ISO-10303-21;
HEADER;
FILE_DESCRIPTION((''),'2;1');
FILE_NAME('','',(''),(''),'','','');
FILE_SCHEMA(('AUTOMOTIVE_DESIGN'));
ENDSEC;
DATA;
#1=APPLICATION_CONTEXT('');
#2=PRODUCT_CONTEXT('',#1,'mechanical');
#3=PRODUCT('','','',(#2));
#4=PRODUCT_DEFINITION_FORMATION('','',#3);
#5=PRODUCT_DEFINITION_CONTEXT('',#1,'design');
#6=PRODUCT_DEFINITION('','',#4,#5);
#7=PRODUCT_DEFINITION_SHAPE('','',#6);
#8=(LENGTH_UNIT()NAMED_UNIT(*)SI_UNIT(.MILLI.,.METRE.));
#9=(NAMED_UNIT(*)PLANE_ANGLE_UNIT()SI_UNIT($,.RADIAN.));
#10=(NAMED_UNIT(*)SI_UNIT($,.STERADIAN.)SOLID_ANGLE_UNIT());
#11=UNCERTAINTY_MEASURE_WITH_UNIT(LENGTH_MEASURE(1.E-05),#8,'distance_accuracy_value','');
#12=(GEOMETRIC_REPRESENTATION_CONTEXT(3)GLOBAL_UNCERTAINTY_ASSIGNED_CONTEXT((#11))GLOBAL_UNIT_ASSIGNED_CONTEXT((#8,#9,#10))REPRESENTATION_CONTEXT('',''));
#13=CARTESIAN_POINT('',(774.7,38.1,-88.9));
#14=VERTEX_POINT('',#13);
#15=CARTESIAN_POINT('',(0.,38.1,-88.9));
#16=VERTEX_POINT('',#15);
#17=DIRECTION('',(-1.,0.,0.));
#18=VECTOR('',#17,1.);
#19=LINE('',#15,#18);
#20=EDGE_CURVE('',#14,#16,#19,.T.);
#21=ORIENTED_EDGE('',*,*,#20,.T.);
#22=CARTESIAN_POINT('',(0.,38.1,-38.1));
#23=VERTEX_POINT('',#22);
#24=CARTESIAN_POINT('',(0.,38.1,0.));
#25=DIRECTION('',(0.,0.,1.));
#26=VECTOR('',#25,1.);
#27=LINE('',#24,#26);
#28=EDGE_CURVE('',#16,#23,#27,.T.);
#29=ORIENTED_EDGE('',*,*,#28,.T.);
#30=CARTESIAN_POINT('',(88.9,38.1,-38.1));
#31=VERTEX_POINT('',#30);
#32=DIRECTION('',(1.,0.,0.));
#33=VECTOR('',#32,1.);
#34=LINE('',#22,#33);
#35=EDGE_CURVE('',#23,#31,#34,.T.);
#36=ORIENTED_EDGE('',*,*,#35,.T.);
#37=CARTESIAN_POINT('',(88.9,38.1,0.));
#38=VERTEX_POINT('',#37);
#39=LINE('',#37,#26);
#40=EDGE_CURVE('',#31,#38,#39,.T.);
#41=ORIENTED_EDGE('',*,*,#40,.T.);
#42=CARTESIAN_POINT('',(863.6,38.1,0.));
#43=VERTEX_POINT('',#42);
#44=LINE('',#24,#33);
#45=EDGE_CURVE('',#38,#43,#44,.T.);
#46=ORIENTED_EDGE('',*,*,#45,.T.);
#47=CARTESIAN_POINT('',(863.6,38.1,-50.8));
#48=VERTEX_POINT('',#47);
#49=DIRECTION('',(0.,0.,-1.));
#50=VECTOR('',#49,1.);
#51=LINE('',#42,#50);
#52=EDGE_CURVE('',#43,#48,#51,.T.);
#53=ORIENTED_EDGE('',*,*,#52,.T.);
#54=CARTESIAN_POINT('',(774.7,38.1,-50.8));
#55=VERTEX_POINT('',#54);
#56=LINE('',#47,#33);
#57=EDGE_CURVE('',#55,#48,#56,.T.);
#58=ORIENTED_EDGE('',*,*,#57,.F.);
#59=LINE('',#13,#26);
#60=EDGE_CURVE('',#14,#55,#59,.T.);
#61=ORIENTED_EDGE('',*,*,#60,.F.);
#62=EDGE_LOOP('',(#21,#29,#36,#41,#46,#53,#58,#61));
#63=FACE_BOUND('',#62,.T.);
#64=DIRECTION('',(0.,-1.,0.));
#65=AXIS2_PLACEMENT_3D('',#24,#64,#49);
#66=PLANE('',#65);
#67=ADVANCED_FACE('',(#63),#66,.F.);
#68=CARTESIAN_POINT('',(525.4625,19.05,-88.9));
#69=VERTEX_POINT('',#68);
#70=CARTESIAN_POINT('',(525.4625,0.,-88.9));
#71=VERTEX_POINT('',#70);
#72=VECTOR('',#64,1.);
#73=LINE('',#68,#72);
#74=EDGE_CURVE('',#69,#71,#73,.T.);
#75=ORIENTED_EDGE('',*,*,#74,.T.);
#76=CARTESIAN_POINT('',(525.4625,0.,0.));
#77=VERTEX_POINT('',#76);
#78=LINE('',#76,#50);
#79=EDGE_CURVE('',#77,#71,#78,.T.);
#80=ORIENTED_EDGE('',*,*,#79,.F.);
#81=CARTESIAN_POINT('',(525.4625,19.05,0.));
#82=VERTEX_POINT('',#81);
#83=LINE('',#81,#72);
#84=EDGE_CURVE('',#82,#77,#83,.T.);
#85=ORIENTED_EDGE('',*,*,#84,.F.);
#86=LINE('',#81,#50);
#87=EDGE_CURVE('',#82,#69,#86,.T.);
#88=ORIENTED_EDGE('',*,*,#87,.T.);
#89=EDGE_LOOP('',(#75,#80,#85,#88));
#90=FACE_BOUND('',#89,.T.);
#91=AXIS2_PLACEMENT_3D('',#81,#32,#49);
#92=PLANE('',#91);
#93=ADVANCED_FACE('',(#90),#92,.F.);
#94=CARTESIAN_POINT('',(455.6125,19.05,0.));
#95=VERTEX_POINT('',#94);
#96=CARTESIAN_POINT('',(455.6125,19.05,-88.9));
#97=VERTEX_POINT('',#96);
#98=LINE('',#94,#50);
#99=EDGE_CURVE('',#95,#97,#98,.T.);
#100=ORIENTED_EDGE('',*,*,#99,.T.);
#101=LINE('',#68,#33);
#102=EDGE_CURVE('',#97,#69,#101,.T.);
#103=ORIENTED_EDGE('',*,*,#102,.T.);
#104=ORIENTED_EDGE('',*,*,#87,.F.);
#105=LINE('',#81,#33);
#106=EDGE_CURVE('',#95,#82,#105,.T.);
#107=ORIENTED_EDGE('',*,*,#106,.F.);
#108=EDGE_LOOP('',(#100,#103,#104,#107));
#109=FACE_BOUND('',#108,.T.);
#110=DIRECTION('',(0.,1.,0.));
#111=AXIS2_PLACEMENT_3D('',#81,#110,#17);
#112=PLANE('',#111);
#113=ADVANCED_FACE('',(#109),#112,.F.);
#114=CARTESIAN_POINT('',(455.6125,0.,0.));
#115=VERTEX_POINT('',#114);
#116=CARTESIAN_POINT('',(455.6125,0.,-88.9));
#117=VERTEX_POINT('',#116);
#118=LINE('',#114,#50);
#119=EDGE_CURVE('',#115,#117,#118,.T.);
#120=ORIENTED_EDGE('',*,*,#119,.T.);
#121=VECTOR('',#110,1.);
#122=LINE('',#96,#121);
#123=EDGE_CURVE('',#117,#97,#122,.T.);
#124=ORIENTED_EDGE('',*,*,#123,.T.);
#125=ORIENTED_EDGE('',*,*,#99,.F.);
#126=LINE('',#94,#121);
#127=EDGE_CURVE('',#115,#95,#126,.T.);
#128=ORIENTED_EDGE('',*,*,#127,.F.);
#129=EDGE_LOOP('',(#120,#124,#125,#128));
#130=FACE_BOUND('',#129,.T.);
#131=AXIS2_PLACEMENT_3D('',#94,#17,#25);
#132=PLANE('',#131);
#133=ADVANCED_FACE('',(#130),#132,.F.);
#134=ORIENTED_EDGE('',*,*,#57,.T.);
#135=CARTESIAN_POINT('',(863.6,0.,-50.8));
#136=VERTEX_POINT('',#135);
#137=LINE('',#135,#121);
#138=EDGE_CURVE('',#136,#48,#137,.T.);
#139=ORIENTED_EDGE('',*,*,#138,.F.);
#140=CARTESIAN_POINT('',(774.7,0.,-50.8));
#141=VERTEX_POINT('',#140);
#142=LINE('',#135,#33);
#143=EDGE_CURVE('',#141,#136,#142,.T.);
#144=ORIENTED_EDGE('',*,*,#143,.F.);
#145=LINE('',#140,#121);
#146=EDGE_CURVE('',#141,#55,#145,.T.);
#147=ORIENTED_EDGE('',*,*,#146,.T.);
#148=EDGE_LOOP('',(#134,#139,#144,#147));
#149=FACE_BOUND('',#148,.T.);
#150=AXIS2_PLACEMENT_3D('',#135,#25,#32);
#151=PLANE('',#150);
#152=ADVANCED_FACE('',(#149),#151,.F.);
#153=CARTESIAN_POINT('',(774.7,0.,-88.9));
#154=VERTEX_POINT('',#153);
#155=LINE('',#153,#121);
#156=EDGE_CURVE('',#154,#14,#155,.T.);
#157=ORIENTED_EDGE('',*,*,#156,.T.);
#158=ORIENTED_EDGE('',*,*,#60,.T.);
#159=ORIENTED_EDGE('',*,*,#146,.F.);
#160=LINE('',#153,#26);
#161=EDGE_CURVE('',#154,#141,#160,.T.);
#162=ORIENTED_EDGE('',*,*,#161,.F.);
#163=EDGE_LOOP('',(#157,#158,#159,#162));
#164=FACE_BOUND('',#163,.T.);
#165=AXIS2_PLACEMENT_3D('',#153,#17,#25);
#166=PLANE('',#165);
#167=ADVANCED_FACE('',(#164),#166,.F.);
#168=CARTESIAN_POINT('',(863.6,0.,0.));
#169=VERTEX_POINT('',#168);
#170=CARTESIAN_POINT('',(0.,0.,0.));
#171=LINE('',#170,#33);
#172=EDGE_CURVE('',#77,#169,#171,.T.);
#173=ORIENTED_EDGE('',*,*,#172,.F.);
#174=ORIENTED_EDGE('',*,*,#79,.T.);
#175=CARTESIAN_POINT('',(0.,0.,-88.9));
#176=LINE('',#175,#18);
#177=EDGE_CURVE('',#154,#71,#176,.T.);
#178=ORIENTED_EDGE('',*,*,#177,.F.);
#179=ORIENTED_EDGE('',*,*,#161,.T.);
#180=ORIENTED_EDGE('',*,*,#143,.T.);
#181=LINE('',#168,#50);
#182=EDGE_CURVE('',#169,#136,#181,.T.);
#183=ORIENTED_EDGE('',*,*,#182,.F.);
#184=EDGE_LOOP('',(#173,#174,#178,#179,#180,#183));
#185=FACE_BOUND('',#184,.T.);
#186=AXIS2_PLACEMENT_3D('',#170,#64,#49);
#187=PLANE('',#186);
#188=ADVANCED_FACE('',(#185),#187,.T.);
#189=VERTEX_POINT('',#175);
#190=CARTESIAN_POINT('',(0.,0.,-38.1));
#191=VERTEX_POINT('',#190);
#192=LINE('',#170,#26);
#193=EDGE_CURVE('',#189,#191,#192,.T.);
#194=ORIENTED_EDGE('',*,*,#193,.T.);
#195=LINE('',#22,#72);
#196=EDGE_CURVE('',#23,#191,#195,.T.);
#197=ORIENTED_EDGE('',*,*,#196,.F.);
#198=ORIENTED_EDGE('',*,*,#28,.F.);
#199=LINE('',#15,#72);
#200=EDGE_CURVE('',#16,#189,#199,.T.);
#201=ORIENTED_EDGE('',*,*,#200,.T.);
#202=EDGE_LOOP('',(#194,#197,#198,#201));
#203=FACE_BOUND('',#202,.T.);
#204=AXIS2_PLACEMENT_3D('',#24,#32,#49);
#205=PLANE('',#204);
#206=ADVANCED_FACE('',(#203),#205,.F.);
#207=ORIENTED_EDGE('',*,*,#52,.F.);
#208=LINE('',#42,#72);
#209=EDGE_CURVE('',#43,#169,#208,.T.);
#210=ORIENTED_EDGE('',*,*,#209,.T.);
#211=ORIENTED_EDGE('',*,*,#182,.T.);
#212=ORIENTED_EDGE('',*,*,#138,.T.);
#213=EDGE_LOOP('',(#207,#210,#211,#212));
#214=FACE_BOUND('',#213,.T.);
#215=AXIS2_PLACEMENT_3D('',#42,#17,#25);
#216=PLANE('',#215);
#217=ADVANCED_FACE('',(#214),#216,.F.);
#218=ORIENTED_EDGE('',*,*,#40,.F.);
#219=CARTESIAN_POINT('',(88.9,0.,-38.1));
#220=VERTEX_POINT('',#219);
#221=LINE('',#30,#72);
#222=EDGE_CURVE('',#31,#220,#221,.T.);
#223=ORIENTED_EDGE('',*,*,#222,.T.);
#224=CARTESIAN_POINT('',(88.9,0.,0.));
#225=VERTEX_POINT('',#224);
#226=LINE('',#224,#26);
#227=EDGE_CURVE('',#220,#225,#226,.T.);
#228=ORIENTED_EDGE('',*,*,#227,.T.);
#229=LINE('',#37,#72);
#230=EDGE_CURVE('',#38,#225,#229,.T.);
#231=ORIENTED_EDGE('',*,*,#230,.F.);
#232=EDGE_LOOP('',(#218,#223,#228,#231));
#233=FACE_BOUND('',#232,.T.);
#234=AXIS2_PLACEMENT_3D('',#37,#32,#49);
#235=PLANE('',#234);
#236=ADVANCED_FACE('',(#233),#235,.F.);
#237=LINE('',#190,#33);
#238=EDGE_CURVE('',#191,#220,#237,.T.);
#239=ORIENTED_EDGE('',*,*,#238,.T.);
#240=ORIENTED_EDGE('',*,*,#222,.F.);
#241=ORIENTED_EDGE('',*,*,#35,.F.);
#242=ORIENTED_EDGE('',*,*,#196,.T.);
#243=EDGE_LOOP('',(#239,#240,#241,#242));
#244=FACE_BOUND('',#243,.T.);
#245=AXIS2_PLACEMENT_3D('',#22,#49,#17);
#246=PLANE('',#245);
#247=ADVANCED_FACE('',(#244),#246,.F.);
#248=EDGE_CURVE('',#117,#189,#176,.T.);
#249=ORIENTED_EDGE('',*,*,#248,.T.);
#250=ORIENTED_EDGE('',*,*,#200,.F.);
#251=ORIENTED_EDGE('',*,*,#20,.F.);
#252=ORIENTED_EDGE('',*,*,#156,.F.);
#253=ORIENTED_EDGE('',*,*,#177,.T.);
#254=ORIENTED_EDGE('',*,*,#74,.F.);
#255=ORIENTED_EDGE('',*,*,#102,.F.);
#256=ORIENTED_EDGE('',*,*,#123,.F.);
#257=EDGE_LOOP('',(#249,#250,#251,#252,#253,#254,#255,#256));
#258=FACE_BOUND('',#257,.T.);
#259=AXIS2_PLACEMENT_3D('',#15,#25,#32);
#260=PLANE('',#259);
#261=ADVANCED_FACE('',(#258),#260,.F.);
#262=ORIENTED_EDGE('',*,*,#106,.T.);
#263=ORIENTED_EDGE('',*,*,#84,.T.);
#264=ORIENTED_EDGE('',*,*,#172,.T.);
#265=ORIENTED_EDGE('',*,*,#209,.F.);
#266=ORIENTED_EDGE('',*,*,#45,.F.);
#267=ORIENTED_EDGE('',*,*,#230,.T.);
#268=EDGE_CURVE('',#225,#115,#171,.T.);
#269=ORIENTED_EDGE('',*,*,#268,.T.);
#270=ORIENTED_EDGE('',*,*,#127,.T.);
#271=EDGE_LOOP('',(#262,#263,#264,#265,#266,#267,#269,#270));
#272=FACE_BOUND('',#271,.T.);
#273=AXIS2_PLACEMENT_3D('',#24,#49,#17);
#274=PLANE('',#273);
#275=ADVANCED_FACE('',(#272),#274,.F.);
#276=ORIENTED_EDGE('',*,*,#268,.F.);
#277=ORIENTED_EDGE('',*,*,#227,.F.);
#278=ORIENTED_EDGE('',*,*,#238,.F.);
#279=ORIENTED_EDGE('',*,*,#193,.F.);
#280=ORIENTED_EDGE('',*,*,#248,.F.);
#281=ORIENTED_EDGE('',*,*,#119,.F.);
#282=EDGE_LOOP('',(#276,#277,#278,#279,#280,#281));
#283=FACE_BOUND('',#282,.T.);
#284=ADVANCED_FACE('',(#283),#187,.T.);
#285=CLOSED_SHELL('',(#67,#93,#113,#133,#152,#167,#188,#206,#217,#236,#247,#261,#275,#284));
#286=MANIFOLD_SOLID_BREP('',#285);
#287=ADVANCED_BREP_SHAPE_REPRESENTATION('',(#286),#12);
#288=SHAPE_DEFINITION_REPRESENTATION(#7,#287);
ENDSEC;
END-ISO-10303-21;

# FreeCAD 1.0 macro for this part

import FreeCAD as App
import Part
import Sketcher
Q = App.Units.Quantity

doc = App.newDocument("Part")
params = doc.addObject("Spreadsheet::Sheet", "Params")
for row, (alias, value) in enumerate([
    ("sketch1_width", "34 in"),
    ("sketch1_height", "3.5 in"),
    ("pad1_length", "1.5 in"),
    ("sketch2_width", "3.5 in"),
    ("sketch2_height", "1.5 in"),
    ("sketch3_width", "2.75 in"),
    ("sketch3_height", "0.75 in"),
    ("sketch4_width", "3.5 in"),
    ("sketch4_height", "1.5 in"),
], start=1):
    params.set(f"A{row}", alias)
    params.set(f"B{row}", "=" + value)
    params.setAlias(f"B{row}", alias)

body = doc.addObject("PartDesign::Body", "Body")

sketch1 = body.newObject("Sketcher::SketchObject", "Sketch")
sketch1.AttachmentSupport = (doc.getObject("XZ_Plane"), [""])
sketch1.MapMode = "FlatFace"
sketch1.addGeometry(Part.LineSegment(App.Vector(0, -89, 0), App.Vector(0, 0, 0)), False)
sketch1.addGeometry(Part.LineSegment(App.Vector(0, 0, 0), App.Vector(864, 0, 0)), False)
sketch1.addGeometry(Part.LineSegment(App.Vector(864, 0, 0), App.Vector(864, -89, 0)), False)
sketch1.addGeometry(Part.LineSegment(App.Vector(864, -89, 0), App.Vector(0, -89, 0)), False)
sketch1.addConstraint(Sketcher.Constraint("Coincident", 0, 2, 1, 1))
sketch1.addConstraint(Sketcher.Constraint("Coincident", 1, 2, 2, 1))
sketch1.addConstraint(Sketcher.Constraint("Coincident", 2, 2, 3, 1))
sketch1.addConstraint(Sketcher.Constraint("Coincident", 3, 2, 0, 1))
sketch1.addConstraint(Sketcher.Constraint("Vertical", 0))
sketch1.addConstraint(Sketcher.Constraint("Horizontal", 1))
sketch1.addConstraint(Sketcher.Constraint("Vertical", 2))
sketch1.addConstraint(Sketcher.Constraint("Horizontal", 3))
sketch1.addConstraint(Sketcher.Constraint("Coincident", 0, 2, -1, 1))
sketch1.addConstraint(Sketcher.Constraint("DistanceX", 1, 1, 1, 2, Q("34 in")))
sketch1.addConstraint(Sketcher.Constraint("DistanceY", 0, 1, 0, 2, Q("3.5 in")))
sketch1.setExpression("Constraints[9]", "Params.sketch1_width")
sketch1.setExpression("Constraints[10]", "Params.sketch1_height")
pad1 = body.newObject("PartDesign::Pad", "Pad")
pad1.Profile = sketch1
pad1.setExpression("Length", "Params.pad1_length")
pad1.Reversed = True

sketch2 = body.newObject("Sketcher::SketchObject", "Sketch001")
sketch2.AttachmentSupport = (doc.getObject("XZ_Plane"), [""])
sketch2.MapMode = "FlatFace"
sketch2.AttachmentOffset = App.Placement(App.Vector(0, 0, -1.5 * 25.4), App.Rotation())
sketch2.addGeometry(Part.LineSegment(App.Vector(775, -89, 0), App.Vector(775, -51, 0)), False)
sketch2.addGeometry(Part.LineSegment(App.Vector(775, -51, 0), App.Vector(864, -51, 0)), False)
sketch2.addGeometry(Part.LineSegment(App.Vector(864, -51, 0), App.Vector(864, -89, 0)), False)
sketch2.addGeometry(Part.LineSegment(App.Vector(864, -89, 0), App.Vector(775, -89, 0)), False)
sketch2.addConstraint(Sketcher.Constraint("Coincident", 0, 2, 1, 1))
sketch2.addConstraint(Sketcher.Constraint("Coincident", 1, 2, 2, 1))
sketch2.addConstraint(Sketcher.Constraint("Coincident", 2, 2, 3, 1))
sketch2.addConstraint(Sketcher.Constraint("Coincident", 3, 2, 0, 1))
sketch2.addConstraint(Sketcher.Constraint("Vertical", 0))
sketch2.addConstraint(Sketcher.Constraint("Horizontal", 1))
sketch2.addConstraint(Sketcher.Constraint("Vertical", 2))
sketch2.addConstraint(Sketcher.Constraint("Horizontal", 3))
sketch2.addConstraint(Sketcher.Constraint("DistanceX", 1, 1, 1, 2, Q("3.5 in")))
sketch2.addConstraint(Sketcher.Constraint("DistanceY", 0, 1, 0, 2, Q("1.5 in")))
sketch2.addConstraint(Sketcher.Constraint("DistanceY", 0, 2, -1, 1, Q("2 in")))
sketch2.addConstraint(Sketcher.Constraint("DistanceX", -1, 1, 1, 2, Q("34 in")))
sketch2.setExpression("Constraints[8]", "Params.sketch2_width")
sketch2.setExpression("Constraints[9]", "Params.sketch2_height")
pocket1 = body.newObject("PartDesign::Pocket", "Pocket")
pocket1.Profile = sketch2
pocket1.Type = "ThroughAll"
pocket1.Reversed = True

sketch3 = body.newObject("Sketcher::SketchObject", "Sketch002")
sketch3.AttachmentSupport = (doc.getObject("XY_Plane"), [""])
sketch3.MapMode = "FlatFace"
sketch3.AttachmentOffset = App.Placement(App.Vector(0, 0, -3.5 * 25.4), App.Rotation())
sketch3.addGeometry(Part.LineSegment(App.Vector(525, 19, 0), App.Vector(525, 0, 0)), False)
sketch3.addGeometry(Part.LineSegment(App.Vector(525, 0, 0), App.Vector(456, 0, 0)), False)
sketch3.addGeometry(Part.LineSegment(App.Vector(456, 0, 0), App.Vector(456, 19, 0)), False)
sketch3.addGeometry(Part.LineSegment(App.Vector(456, 19, 0), App.Vector(525, 19, 0)), False)
sketch3.addConstraint(Sketcher.Constraint("Coincident", 0, 2, 1, 1))
sketch3.addConstraint(Sketcher.Constraint("Coincident", 1, 2, 2, 1))
sketch3.addConstraint(Sketcher.Constraint("Coincident", 2, 2, 3, 1))
sketch3.addConstraint(Sketcher.Constraint("Coincident", 3, 2, 0, 1))
sketch3.addConstraint(Sketcher.Constraint("Vertical", 0))
sketch3.addConstraint(Sketcher.Constraint("Horizontal", 1))
sketch3.addConstraint(Sketcher.Constraint("Vertical", 2))
sketch3.addConstraint(Sketcher.Constraint("Horizontal", 3))
sketch3.addConstraint(Sketcher.Constraint("PointOnObject", 0, 2, -1))
sketch3.addConstraint(Sketcher.Constraint("DistanceX", 1, 2, 1, 1, Q("2.75 in")))
sketch3.addConstraint(Sketcher.Constraint("DistanceY", 0, 2, 0, 1, Q("0.75 in")))
sketch3.addConstraint(Sketcher.Constraint("DistanceX", -1, 1, 0, 2, Q("20.6875 in")))
sketch3.setExpression("Constraints[9]", "Params.sketch3_width")
sketch3.setExpression("Constraints[10]", "Params.sketch3_height")
pocket2 = body.newObject("PartDesign::Pocket", "Pocket001")
pocket2.Profile = sketch3
pocket2.Type = "ThroughAll"
pocket2.Reversed = True

sketch4 = body.newObject("Sketcher::SketchObject", "Sketch003")
sketch4.AttachmentSupport = (doc.getObject("XZ_Plane"), [""])
sketch4.MapMode = "FlatFace"
sketch4.addGeometry(Part.LineSegment(App.Vector(0, 0, 0), App.Vector(0, -38, 0)), False)
sketch4.addGeometry(Part.LineSegment(App.Vector(0, -38, 0), App.Vector(89, -38, 0)), False)
sketch4.addGeometry(Part.LineSegment(App.Vector(89, -38, 0), App.Vector(89, 0, 0)), False)
sketch4.addGeometry(Part.LineSegment(App.Vector(89, 0, 0), App.Vector(0, 0, 0)), False)
sketch4.addConstraint(Sketcher.Constraint("Coincident", 0, 2, 1, 1))
sketch4.addConstraint(Sketcher.Constraint("Coincident", 1, 2, 2, 1))
sketch4.addConstraint(Sketcher.Constraint("Coincident", 2, 2, 3, 1))
sketch4.addConstraint(Sketcher.Constraint("Coincident", 3, 2, 0, 1))
sketch4.addConstraint(Sketcher.Constraint("Vertical", 0))
sketch4.addConstraint(Sketcher.Constraint("Horizontal", 1))
sketch4.addConstraint(Sketcher.Constraint("Vertical", 2))
sketch4.addConstraint(Sketcher.Constraint("Horizontal", 3))
sketch4.addConstraint(Sketcher.Constraint("Coincident", 3, 2, -1, 1))
sketch4.addConstraint(Sketcher.Constraint("DistanceX", 1, 1, 1, 2, Q("3.5 in")))
sketch4.addConstraint(Sketcher.Constraint("DistanceY", 0, 2, 0, 1, Q("1.5 in")))
sketch4.setExpression("Constraints[9]", "Params.sketch4_width")
sketch4.setExpression("Constraints[10]", "Params.sketch4_height")
pocket3 = body.newObject("PartDesign::Pocket", "Pocket002")
pocket3.Profile = sketch4
pocket3.Type = "ThroughAll"

doc.recompute()
